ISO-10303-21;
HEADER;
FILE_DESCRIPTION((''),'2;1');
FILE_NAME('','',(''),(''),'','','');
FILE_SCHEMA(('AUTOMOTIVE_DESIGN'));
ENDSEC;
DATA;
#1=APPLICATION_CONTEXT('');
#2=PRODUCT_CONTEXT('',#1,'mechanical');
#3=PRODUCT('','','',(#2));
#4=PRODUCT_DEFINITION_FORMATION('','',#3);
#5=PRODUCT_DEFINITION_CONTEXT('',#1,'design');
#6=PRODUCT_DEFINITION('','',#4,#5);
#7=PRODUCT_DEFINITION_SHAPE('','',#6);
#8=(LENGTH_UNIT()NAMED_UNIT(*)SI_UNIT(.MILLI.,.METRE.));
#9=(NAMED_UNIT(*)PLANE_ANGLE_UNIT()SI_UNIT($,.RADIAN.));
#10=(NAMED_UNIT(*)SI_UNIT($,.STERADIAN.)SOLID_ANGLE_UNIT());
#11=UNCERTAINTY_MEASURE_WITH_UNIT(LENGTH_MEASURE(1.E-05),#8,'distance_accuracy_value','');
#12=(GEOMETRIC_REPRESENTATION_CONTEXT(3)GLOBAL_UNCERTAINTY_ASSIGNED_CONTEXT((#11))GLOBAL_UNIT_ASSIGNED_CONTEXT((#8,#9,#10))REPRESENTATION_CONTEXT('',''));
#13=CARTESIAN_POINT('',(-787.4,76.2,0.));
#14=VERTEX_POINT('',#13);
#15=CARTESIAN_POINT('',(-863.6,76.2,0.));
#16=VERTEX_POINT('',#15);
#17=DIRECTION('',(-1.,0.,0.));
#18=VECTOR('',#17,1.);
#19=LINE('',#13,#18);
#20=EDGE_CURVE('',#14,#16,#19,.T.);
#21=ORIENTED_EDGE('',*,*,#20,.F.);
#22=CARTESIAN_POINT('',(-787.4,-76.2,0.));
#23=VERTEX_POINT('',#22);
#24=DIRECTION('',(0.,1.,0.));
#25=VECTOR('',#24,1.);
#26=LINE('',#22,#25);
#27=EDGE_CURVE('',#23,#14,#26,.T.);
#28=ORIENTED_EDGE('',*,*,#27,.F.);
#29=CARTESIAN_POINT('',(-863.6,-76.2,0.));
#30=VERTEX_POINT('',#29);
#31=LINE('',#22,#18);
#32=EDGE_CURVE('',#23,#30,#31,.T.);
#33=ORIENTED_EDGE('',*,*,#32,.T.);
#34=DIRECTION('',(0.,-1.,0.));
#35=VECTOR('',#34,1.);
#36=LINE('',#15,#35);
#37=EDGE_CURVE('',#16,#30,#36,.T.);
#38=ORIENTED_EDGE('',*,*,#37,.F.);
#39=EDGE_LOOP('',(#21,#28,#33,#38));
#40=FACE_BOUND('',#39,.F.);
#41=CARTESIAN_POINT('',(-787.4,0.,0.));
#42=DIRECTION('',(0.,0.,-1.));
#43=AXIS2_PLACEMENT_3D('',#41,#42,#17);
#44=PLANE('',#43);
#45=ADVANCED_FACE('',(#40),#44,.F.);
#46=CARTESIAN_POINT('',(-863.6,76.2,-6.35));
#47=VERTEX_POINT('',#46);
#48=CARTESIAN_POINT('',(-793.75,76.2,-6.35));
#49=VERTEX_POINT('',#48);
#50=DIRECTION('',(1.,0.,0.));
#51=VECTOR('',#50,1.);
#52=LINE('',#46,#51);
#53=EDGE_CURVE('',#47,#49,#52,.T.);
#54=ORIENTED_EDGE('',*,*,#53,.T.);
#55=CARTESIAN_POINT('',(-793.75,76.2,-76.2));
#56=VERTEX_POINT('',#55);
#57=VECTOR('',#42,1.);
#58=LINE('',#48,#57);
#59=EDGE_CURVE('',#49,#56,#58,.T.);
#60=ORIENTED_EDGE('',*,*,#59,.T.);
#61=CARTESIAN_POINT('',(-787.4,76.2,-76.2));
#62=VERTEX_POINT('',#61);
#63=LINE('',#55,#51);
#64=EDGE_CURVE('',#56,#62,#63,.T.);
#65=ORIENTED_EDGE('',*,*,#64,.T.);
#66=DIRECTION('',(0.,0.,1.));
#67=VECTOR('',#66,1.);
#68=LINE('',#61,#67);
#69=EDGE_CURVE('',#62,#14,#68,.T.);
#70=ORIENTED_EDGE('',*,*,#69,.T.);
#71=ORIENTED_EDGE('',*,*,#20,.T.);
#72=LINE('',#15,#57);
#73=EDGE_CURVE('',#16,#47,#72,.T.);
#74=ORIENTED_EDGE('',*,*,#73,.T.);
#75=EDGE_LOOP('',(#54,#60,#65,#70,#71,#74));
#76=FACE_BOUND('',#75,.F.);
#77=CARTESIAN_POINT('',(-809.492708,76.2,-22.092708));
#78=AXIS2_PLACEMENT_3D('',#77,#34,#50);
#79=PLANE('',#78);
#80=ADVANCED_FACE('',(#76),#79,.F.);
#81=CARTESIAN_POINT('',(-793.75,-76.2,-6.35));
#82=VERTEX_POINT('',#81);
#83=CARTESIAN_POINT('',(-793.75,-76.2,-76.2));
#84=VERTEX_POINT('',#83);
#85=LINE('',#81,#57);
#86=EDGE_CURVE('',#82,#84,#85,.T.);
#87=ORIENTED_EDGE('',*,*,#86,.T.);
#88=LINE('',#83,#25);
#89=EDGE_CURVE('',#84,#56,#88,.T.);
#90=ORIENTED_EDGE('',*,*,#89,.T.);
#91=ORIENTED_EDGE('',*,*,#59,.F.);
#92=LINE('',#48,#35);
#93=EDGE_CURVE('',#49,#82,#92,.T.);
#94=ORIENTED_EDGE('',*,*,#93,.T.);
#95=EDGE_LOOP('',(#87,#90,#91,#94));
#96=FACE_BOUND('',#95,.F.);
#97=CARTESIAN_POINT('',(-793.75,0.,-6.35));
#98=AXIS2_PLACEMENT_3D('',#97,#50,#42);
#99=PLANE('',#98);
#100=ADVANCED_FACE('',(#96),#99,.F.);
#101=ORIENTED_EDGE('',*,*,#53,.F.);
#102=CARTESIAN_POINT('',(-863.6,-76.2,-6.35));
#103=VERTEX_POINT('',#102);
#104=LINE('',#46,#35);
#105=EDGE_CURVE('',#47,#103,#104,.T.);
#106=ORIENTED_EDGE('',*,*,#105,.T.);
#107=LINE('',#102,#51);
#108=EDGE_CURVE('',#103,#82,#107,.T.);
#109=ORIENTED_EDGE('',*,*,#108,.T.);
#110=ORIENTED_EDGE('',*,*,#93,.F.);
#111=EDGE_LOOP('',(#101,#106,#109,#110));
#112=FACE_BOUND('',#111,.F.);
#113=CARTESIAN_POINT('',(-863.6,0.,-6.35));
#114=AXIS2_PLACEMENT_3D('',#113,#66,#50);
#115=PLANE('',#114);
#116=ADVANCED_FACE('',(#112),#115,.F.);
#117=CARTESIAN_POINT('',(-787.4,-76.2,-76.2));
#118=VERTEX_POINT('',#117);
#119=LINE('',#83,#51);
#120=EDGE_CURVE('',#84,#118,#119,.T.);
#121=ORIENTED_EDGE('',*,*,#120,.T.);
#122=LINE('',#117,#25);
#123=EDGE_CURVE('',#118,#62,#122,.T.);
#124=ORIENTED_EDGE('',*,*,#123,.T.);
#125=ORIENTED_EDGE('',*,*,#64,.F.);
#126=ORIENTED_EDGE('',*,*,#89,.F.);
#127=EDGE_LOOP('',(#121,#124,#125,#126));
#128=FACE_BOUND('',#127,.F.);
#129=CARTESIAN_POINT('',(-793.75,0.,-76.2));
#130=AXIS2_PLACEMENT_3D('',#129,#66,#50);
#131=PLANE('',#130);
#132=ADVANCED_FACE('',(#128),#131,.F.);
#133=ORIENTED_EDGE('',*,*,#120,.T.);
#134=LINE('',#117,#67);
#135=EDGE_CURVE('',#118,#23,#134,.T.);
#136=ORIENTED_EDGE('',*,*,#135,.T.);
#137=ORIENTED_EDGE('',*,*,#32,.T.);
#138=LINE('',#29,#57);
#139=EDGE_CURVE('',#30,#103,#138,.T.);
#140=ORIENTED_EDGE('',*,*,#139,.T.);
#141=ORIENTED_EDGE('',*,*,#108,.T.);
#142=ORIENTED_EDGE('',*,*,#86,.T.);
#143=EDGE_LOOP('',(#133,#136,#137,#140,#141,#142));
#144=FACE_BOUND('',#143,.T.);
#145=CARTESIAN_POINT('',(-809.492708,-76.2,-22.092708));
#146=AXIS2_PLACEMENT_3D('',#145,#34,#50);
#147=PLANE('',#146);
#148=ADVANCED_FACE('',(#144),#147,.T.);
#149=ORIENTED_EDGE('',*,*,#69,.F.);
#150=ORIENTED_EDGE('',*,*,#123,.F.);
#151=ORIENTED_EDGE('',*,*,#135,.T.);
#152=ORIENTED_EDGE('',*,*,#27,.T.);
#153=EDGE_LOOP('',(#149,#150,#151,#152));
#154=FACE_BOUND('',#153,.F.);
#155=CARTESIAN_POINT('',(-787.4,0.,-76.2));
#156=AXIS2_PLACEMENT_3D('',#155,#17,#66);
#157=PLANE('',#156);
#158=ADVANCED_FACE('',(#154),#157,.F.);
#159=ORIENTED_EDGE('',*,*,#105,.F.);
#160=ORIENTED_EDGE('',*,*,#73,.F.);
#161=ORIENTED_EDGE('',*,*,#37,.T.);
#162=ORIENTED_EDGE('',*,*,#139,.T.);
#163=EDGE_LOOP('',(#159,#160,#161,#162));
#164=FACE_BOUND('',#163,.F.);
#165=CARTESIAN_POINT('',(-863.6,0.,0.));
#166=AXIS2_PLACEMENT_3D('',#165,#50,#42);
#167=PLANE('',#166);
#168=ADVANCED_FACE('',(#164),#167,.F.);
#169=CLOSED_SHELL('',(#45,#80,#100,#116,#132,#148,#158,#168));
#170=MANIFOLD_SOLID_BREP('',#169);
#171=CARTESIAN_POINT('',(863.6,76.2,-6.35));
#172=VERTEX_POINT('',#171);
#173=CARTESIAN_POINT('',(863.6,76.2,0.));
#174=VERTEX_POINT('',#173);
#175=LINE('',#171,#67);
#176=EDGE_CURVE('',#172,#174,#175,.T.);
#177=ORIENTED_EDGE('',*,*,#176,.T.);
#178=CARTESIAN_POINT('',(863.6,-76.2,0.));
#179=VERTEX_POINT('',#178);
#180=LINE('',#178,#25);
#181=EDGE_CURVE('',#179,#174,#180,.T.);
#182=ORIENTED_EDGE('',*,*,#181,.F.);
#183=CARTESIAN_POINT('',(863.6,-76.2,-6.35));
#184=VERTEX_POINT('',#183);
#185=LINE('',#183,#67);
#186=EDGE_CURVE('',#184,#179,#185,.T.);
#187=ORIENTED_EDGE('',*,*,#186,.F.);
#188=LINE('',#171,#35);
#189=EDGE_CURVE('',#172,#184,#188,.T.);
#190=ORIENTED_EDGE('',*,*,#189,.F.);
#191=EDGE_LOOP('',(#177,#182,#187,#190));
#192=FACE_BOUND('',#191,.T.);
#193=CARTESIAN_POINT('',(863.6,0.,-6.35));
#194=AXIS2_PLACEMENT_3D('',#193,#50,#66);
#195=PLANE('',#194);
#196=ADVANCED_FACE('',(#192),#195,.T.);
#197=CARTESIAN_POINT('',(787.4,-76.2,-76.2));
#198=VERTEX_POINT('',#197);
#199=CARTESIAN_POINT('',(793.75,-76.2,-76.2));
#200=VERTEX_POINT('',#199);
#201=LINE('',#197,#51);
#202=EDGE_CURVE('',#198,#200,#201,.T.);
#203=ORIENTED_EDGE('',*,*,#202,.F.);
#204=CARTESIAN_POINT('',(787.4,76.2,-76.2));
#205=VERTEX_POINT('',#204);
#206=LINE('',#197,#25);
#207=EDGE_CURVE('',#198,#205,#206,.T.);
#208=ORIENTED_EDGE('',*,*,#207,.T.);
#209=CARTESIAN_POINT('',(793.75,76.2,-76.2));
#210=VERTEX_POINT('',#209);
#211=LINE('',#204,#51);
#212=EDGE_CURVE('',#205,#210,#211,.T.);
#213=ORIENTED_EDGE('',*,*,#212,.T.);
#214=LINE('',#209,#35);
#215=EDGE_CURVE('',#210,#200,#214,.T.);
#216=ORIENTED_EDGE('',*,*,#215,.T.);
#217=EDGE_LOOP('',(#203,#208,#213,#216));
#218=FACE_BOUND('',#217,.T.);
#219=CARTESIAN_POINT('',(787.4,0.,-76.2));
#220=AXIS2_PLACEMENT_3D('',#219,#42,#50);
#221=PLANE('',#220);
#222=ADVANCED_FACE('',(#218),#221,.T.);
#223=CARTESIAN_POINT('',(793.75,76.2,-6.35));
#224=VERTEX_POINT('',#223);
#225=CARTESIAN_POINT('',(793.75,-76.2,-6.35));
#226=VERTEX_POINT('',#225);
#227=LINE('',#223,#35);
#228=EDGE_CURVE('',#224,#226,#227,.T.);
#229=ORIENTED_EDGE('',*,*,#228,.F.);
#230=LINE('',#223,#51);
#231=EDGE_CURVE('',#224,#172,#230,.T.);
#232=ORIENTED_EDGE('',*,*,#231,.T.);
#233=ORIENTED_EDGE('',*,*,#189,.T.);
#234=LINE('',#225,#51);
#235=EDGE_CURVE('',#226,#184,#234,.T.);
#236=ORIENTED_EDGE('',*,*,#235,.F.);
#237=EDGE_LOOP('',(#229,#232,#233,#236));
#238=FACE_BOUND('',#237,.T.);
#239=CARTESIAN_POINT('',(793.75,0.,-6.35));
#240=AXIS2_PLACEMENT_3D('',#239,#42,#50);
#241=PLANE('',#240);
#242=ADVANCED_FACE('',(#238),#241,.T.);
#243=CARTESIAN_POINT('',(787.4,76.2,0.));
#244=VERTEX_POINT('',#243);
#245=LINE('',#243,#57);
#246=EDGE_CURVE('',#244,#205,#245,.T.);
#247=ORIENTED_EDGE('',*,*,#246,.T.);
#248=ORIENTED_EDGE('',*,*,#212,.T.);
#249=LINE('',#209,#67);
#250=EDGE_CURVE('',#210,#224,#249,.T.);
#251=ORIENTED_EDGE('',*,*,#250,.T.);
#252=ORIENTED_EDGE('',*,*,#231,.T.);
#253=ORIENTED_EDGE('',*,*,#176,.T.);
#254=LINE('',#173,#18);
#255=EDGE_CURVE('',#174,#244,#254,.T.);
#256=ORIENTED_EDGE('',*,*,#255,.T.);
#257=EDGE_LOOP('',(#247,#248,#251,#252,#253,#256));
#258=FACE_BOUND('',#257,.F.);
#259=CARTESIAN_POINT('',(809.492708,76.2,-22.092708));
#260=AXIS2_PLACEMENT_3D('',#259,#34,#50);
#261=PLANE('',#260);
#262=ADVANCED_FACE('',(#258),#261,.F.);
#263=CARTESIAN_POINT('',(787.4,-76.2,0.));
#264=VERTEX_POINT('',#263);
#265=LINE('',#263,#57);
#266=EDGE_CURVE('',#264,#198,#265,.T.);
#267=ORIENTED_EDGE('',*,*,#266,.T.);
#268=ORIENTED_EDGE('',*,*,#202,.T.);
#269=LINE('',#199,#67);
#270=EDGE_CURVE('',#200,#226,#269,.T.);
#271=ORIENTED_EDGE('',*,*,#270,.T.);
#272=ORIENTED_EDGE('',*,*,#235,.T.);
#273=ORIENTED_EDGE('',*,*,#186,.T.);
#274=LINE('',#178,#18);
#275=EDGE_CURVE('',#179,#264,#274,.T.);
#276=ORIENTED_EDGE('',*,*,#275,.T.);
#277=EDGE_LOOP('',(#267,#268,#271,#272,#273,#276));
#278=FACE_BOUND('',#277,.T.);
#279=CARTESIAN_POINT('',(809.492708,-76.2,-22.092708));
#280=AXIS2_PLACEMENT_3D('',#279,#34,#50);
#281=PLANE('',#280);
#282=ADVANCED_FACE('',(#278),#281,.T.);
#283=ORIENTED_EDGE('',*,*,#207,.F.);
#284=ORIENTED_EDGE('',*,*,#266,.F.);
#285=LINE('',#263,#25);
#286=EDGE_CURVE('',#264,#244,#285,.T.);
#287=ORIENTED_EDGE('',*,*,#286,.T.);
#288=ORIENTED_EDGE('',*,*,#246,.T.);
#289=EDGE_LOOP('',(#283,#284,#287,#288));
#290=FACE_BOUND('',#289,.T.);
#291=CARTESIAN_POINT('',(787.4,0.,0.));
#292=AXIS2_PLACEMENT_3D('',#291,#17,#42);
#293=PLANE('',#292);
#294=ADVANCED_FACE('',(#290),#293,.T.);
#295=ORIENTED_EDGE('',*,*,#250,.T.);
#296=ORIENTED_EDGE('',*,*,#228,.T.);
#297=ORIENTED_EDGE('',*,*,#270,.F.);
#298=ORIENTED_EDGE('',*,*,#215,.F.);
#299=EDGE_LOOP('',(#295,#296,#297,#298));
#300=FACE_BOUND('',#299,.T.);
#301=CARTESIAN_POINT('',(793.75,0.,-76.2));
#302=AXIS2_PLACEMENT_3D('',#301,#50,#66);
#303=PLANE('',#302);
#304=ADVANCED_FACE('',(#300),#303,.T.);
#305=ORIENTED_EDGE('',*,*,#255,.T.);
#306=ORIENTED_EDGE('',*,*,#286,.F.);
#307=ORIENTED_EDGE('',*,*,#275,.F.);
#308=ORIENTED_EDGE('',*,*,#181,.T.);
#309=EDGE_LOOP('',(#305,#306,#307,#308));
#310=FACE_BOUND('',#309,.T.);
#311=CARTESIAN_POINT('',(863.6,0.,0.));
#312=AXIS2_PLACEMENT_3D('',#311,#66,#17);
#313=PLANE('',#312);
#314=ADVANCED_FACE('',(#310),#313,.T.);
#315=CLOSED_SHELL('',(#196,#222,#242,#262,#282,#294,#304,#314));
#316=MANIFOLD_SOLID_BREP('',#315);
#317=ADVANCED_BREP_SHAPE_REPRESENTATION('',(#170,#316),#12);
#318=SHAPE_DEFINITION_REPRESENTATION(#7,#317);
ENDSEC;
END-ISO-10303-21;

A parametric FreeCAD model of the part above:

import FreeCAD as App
import Part
import Sketcher
from FreeCAD import Vector
Q = App.Units.Quantity


def add_polygon(sketch, points):
    """Adds a closed chain of lines whose ends are joined by coincident constraints."""
    first, n = sketch.GeometryCount, len(points)
    for a, b in zip(points, points[1:] + points[:1]):
        sketch.addGeometry(Part.LineSegment(App.Vector(*a, 0), App.Vector(*b, 0)), False)
    for i in range(n):
        sketch.addConstraint(Sketcher.Constraint("Coincident", first + i, 2, first + (i + 1) % n, 1))

doc = App.newDocument("Part")
params = doc.addObject("Spreadsheet::Sheet", "Params")
for row, (alias, value) in enumerate([
    ("sketch1_width", "3 in"),
    ("sketch1_width2", "2.75 in"),
    ("pad1_length", "6 in"),
], start=1):
    params.set(f"A{row}", alias)
    params.set(f"B{row}", "=" + value)
    params.setAlias(f"B{row}", alias)

body = doc.addObject("PartDesign::Body", "Body")
body.AllowCompound = True

# Sketch on XZ plane
sketch1 = doc.addObject("Sketcher::SketchObject", "Sketch")
body.addObject(sketch1)
sketch1.AttachmentSupport = (doc.XZ_Plane, [""])
sketch1.MapMode = "FlatFace"
add_polygon(sketch1, [(-787, 0), (-864, 0), (-864, -6), (-794, -6), (-794, -76), (-787, -76)])  # lines 0-5
add_polygon(sketch1, [(787, -76), (794, -76), (794, -6), (864, -6), (864, 0), (787, 0)])  # lines 6-11
sketch1.addConstraint([
    Sketcher.Constraint("Horizontal", 0),
    Sketcher.Constraint("Vertical", 1),
    Sketcher.Constraint("Horizontal", 2),
    Sketcher.Constraint("Vertical", 3),
    Sketcher.Constraint("Horizontal", 4),
    Sketcher.Constraint("Vertical", 5),
    Sketcher.Constraint("Horizontal", 6),
    Sketcher.Constraint("Vertical", 7),
    Sketcher.Constraint("Horizontal", 8),
    Sketcher.Constraint("Vertical", 9),
    Sketcher.Constraint("Horizontal", 10),
    Sketcher.Constraint("Vertical", 11),
    Sketcher.Constraint("Symmetric", 0, 2, 9, 2, -1, 1),
    Sketcher.Constraint("Symmetric", 3, 2, 6, 2, -2),
    Sketcher.Constraint("Symmetric", 5, 2, 10, 2, -2),
    Sketcher.Constraint("Horizontal", 2, 2, 7, 2),
    Sketcher.Constraint("Equal", 6, 1),
    Sketcher.Constraint("Equal", 8, 3),
    Sketcher.Constraint("DistanceX", 0, 2, 0, 1, Q("3 in")),
    Sketcher.Constraint("DistanceX", 0, 2, -1, 1, Q("34 in")),
    Sketcher.Constraint("DistanceX", 2, 1, 2, 2, Q("2.75 in")),
])
sketch1.setExpression("Constraints[30]", "Params.sketch1_width")
sketch1.setExpression("Constraints[32]", "Params.sketch1_width2")
pad1 = doc.addObject("PartDesign::Pad", "Pad")
body.addObject(pad1)
pad1.Profile = sketch1
pad1.setExpression("Length", "Params.pad1_length")
pad1.Midplane = True

doc.recompute()
